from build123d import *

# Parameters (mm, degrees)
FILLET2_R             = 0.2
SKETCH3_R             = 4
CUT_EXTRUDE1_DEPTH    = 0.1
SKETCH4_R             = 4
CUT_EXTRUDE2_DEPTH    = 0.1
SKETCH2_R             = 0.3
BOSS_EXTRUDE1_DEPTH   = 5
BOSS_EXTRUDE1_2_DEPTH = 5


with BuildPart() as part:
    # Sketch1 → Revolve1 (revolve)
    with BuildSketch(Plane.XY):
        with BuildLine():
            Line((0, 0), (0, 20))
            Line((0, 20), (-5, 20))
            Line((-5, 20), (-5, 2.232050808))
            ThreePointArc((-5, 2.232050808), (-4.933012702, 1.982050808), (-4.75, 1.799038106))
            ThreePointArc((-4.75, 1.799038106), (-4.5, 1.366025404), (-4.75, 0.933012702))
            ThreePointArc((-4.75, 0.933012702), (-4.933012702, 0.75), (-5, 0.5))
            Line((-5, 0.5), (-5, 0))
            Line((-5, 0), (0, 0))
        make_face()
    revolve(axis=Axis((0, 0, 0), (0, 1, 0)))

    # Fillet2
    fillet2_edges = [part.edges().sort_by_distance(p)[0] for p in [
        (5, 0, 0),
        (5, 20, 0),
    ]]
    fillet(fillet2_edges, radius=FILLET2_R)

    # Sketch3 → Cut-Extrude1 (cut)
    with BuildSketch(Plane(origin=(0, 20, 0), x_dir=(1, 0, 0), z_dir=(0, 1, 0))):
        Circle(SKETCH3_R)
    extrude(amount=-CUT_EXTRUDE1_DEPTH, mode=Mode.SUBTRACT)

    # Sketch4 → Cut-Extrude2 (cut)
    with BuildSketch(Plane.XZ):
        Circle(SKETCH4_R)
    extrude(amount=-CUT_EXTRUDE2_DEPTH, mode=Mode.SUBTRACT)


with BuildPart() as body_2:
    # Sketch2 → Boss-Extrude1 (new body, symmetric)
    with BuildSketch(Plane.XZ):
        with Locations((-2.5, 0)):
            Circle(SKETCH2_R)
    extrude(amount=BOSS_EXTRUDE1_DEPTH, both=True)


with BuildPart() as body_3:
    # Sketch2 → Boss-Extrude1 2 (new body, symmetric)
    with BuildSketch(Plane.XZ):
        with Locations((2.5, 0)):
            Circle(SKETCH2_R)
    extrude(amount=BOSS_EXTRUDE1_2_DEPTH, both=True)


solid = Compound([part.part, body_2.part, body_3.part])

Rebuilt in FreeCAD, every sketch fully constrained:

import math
import FreeCAD as App
import Part
import Sketcher
from FreeCAD import Vector


def edges_at(feature, points):
    """Names of the edges that pass closest to the given points."""
    edges = feature.Shape.Edges
    near = lambda p: min(range(len(edges)), key=lambda i: edges[i].distToShape(Part.Vertex(*p))[0])
    return sorted({f"Edge{near(p) + 1}" for p in points})

doc = App.newDocument("Part")
body = doc.addObject("PartDesign::Body", "Body")

# Sketch on XY plane
sketch1 = body.newObject("Sketcher::SketchObject", "Sketch")
sketch1.AttachmentSupport = (doc.getObject("XY_Plane"), [""])
sketch1.MapMode = "FlatFace"
sketch1.addGeometry(Part.LineSegment(Vector(0, 0, 0), Vector(0, 20, 0)), False)
sketch1.addGeometry(Part.LineSegment(Vector(0, 20, 0), Vector(-5, 20, 0)), False)
sketch1.addGeometry(Part.LineSegment(Vector(-5, 20, 0), Vector(-5, 2.2, 0)), False)
sketch1.addGeometry(Part.ArcOfCircle(Part.Circle(Vector(-4.5, 2.2, 0), Vector(0, 0, 1), 0.5), math.radians(180), math.radians(240)), False)
sketch1.addGeometry(Part.ArcOfCircle(Part.Circle(Vector(-5, 1.4, 0), Vector(0, 0, 1), 0.5), math.radians(-60), math.radians(60)), False)
sketch1.addGeometry(Part.ArcOfCircle(Part.Circle(Vector(-4.5, 0.5, 0), Vector(0, 0, 1), 0.5), math.radians(120), math.radians(180)), False)
sketch1.addGeometry(Part.LineSegment(Vector(-5, 0.5, 0), Vector(-5, 0, 0)), False)
sketch1.addGeometry(Part.LineSegment(Vector(-5, 0, 0), Vector(0, 0, 0)), False)
sketch1.addConstraint(Sketcher.Constraint("Coincident", 0, 2, 1, 1))
sketch1.addConstraint(Sketcher.Constraint("Coincident", 1, 2, 2, 1))
sketch1.addConstraint(Sketcher.Constraint("Tangent", 2, 2, 3, 1))
sketch1.addConstraint(Sketcher.Constraint("Tangent", 3, 2, 4, 2))
sketch1.addConstraint(Sketcher.Constraint("Tangent", 4, 1, 5, 1))
sketch1.addConstraint(Sketcher.Constraint("Tangent", 5, 2, 6, 1))
sketch1.addConstraint(Sketcher.Constraint("Coincident", 6, 2, 7, 1))
sketch1.addConstraint(Sketcher.Constraint("Coincident", 7, 2, 0, 1))
sketch1.addConstraint(Sketcher.Constraint("Vertical", 0))
sketch1.addConstraint(Sketcher.Constraint("Horizontal", 1))
sketch1.addConstraint(Sketcher.Constraint("Vertical", 2))
sketch1.addConstraint(Sketcher.Constraint("Vertical", 6))
sketch1.addConstraint(Sketcher.Constraint("Horizontal", 7))
sketch1.addConstraint(Sketcher.Constraint("Coincident", 7, 2, -1, 1))
sketch1.addConstraint(Sketcher.Constraint("Equal", 3, 4))
sketch1.addConstraint(Sketcher.Constraint("Equal", 4, 5))
sketch1.addConstraint(Sketcher.Constraint("Vertical", 3, 3, 5, 3))
sketch1.addConstraint(Sketcher.Constraint("Vertical", 4, 3, 1, 2))
sketch1.addConstraint(Sketcher.Constraint("Radius", 3, 0.5))
sketch1.addConstraint(Sketcher.Constraint("DistanceX", 1, 2, 1, 1, 5.0))
sketch1.addConstraint(Sketcher.Constraint("DistanceY", 0, 1, 0, 2, 20.0))
sketch1.addConstraint(Sketcher.Constraint("DistanceY", 6, 2, 6, 1, 0.5))
revolution = body.newObject("PartDesign::Revolution", "Revolution")
revolution.Profile = sketch1
revolution.ReferenceAxis = (sketch1, ["V_Axis"])
revolution.Angle = 360
doc.recompute()

fillet = body.newObject("PartDesign::Fillet", "Fillet")
fillet.Base = (revolution, edges_at(revolution, [(5, 0, 0), (5, 20, 0)]))
fillet.Radius = 0.2

# Sketch on XZ plane
sketch2 = body.newObject("Sketcher::SketchObject", "Sketch001")
sketch2.AttachmentSupport = (doc.getObject("XZ_Plane"), [""])
sketch2.MapMode = "FlatFace"
sketch2.AttachmentOffset = App.Placement(Vector(0, 0, -20), App.Rotation())
sketch2.addGeometry(Part.Circle(Vector(0, 0, 0), Vector(0, 0, 1), 4), False)
sketch2.addConstraint(Sketcher.Constraint("Coincident", 0, 3, -1, 1))
sketch2.addConstraint(Sketcher.Constraint("Diameter", 0, 8.0))
pocket1 = body.newObject("PartDesign::Pocket", "Pocket")
pocket1.Profile = sketch2
pocket1.Length = 0.1
pocket1.Reversed = True

# Sketch on XZ plane
sketch3 = body.newObject("Sketcher::SketchObject", "Sketch002")
sketch3.AttachmentSupport = (doc.getObject("XZ_Plane"), [""])
sketch3.MapMode = "FlatFace"
sketch3.addGeometry(Part.Circle(Vector(0, 0, 0), Vector(0, 0, 1), 4), False)
sketch3.addConstraint(Sketcher.Constraint("Coincident", 0, 3, -1, 1))
sketch3.addConstraint(Sketcher.Constraint("Diameter", 0, 8.0))
pocket2 = body.newObject("PartDesign::Pocket", "Pocket001")
pocket2.Profile = sketch3
pocket2.Length = 0.1
body2 = doc.addObject("PartDesign::Body", "Body001")

# Sketch on XZ plane
sketch4 = body2.newObject("Sketcher::SketchObject", "Sketch003")
sketch4.AttachmentSupport = (doc.getObject("XZ_Plane001"), [""])
sketch4.MapMode = "FlatFace"
sketch4.addGeometry(Part.Circle(Vector(-2.5, 0, 0), Vector(0, 0, 1), 0.3), False)
sketch4.addConstraint(Sketcher.Constraint("PointOnObject", 0, 3, -1))
sketch4.addConstraint(Sketcher.Constraint("Diameter", 0, 0.6))
sketch4.addConstraint(Sketcher.Constraint("DistanceX", 0, 3, -1, 1, 2.5))
pad1 = body2.newObject("PartDesign::Pad", "Pad")
pad1.Profile = sketch4
pad1.Length = 10
pad1.Midplane = True
body3 = doc.addObject("PartDesign::Body", "Body002")

# Sketch on XZ plane
sketch5 = body3.newObject("Sketcher::SketchObject", "Sketch004")
sketch5.AttachmentSupport = (doc.getObject("XZ_Plane002"), [""])
sketch5.MapMode = "FlatFace"
sketch5.addGeometry(Part.Circle(Vector(2.5, 0, 0), Vector(0, 0, 1), 0.3), False)
sketch5.addConstraint(Sketcher.Constraint("PointOnObject", 0, 3, -1))
sketch5.addConstraint(Sketcher.Constraint("Diameter", 0, 0.6))
sketch5.addConstraint(Sketcher.Constraint("DistanceX", -1, 1, 0, 3, 2.5))
pad2 = body3.newObject("PartDesign::Pad", "Pad001")
pad2.Profile = sketch5
pad2.Length = 10
pad2.Midplane = True

doc.recompute()
